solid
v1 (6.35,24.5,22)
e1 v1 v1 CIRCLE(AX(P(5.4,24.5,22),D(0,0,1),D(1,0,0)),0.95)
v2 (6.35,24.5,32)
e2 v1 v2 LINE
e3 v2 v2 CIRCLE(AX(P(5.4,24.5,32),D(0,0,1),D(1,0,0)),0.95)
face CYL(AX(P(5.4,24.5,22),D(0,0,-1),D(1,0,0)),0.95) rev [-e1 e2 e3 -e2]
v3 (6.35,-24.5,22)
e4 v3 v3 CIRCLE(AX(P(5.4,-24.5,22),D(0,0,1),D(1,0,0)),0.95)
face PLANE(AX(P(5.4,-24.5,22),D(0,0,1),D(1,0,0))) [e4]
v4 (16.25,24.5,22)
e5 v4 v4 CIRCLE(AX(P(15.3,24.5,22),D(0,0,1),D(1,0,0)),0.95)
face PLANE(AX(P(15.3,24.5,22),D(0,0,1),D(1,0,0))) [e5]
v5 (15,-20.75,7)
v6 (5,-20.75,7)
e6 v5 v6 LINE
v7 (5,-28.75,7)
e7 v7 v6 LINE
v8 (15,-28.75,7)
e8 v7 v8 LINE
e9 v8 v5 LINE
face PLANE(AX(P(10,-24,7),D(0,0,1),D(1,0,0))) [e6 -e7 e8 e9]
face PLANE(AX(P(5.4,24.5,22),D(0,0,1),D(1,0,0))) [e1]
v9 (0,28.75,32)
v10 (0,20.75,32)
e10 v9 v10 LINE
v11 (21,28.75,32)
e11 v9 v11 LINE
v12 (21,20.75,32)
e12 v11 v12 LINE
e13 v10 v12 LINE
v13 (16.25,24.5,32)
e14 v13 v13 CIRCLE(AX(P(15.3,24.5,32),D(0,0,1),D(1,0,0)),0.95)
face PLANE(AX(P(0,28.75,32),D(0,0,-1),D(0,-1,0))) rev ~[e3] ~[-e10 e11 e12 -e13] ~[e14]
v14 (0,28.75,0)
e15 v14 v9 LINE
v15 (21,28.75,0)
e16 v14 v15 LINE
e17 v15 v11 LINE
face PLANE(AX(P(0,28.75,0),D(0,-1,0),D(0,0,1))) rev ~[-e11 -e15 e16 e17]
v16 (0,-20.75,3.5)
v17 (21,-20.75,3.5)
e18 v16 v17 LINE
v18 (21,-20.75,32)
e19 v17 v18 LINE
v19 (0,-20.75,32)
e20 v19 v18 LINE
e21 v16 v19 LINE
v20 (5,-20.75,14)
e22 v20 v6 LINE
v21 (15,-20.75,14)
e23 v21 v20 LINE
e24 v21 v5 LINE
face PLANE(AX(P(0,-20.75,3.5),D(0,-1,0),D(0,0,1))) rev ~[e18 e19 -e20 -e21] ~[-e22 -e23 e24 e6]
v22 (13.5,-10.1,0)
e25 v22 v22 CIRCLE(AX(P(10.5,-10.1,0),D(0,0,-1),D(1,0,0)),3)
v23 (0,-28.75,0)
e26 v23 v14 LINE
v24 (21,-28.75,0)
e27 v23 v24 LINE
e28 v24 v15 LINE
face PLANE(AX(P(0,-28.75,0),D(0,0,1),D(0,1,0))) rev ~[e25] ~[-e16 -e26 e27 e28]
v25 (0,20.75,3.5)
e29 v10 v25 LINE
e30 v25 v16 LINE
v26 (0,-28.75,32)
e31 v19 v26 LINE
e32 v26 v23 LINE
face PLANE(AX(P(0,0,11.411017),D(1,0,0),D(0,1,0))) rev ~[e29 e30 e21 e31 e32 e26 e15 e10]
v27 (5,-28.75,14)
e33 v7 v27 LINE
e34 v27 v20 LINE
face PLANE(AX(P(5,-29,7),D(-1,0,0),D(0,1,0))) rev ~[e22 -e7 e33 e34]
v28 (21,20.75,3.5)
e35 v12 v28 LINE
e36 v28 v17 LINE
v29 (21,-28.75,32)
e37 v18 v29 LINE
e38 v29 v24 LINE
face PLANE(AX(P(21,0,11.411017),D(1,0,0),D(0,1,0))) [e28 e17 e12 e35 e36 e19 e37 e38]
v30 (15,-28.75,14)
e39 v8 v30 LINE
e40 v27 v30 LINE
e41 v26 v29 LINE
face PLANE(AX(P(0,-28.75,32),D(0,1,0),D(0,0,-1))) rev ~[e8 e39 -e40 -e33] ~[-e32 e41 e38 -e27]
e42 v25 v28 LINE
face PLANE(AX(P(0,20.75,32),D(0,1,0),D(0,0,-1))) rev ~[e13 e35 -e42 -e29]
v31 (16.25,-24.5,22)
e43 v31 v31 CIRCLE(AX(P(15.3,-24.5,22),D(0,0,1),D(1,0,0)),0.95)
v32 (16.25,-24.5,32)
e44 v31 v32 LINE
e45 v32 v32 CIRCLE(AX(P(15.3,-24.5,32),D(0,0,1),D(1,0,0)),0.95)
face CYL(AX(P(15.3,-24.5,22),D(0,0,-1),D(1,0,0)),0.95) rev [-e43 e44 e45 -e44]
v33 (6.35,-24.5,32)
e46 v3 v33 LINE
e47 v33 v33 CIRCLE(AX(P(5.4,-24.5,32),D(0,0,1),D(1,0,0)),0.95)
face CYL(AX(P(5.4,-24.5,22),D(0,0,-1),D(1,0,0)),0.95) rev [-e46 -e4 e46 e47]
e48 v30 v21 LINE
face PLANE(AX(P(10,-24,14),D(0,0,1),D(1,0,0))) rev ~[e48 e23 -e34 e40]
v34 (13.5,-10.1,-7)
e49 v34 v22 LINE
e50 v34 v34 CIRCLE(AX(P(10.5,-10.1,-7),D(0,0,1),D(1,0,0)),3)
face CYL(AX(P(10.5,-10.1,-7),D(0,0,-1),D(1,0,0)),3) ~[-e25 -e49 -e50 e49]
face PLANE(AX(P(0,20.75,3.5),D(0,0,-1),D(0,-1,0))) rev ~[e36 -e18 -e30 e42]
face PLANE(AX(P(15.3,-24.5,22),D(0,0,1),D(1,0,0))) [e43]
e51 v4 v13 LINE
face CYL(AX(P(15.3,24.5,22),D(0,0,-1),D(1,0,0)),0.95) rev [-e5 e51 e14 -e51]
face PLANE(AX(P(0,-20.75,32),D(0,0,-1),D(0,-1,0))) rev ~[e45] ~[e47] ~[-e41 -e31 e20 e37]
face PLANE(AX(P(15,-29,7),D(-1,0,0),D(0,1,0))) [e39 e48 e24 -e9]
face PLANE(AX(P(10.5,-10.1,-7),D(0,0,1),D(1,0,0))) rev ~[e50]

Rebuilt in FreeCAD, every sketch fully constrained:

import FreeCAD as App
import Part
import Sketcher
from FreeCAD import Vector
Q = App.Units.Quantity


def add_polygon(sketch, points):
    """Adds a closed chain of lines whose ends are joined by coincident constraints."""
    first, n = sketch.GeometryCount, len(points)
    for a, b in zip(points, points[1:] + points[:1]):
        sketch.addGeometry(Part.LineSegment(App.Vector(*a, 0), App.Vector(*b, 0)), False)
    for i in range(n):
        sketch.addConstraint(Sketcher.Constraint("Coincident", first + i, 2, first + (i + 1) % n, 1))

doc = App.newDocument("Part")
body = doc.addObject("PartDesign::Body", "Body")

# Sketch on XY plane
sketch1 = body.newObject("Sketcher::SketchObject", "Sketch")
sketch1.AttachmentSupport = (doc.getObject("XY_Plane"), [""])
sketch1.MapMode = "FlatFace"
sketch1.addGeometry(Part.Circle(Vector(9.9, 0, 0), Vector(0, 0, 1), 0.9), False)
sketch1.addConstraint(Sketcher.Constraint("PointOnObject", 0, 3, -1))
sketch1.addConstraint(Sketcher.Constraint("Diameter", 0, Q("1.9 mm")))
sketch1.addConstraint(Sketcher.Constraint("DistanceX", -1, 1, 0, 3, Q("9.9 mm")))
pad1 = body.newObject("PartDesign::Pad", "Pad")
pad1.Profile = sketch1
pad1.Length = 10
body2 = doc.addObject("PartDesign::Body", "Body001")
body2.AllowCompound = True

# Sketch on XY plane
sketch2 = body2.newObject("Sketcher::SketchObject", "Sketch001")
sketch2.AttachmentSupport = (doc.getObject("XY_Plane001"), [""])
sketch2.MapMode = "FlatFace"
sketch2.addGeometry(Part.Circle(Vector(0, 0, 0), Vector(0, 0, 1), 0.9), False)
sketch2.addConstraint(Sketcher.Constraint("Coincident", 0, 3, -1, 1))
sketch2.addConstraint(Sketcher.Constraint("Diameter", 0, Q("1.9 mm")))
pad2 = body2.newObject("PartDesign::Pad", "Pad001")
pad2.Profile = sketch2
pad2.Length = 10
doc.recompute()

boolean = body2.newObject("PartDesign::Boolean", "Boolean")
boolean.Type = "Fuse"
boolean.addObjects([body])
body3 = doc.addObject("PartDesign::Body", "Body002")
body3.AllowCompound = True
doc.recompute()

body2.Placement = App.Placement(Vector(5, -24.5, 22), App.Rotation(Vector(0, 0, 1), 0))
boolean2 = body3.newObject("PartDesign::Boolean", "Boolean001")
boolean2.Type = "Fuse"
boolean2.addObjects([body2])
body4 = doc.addObject("PartDesign::Body", "Body003")

# Sketch on XY plane
sketch3 = body4.newObject("Sketcher::SketchObject", "Sketch002")
sketch3.AttachmentSupport = (doc.getObject("XY_Plane003"), [""])
sketch3.MapMode = "FlatFace"
sketch3.addGeometry(Part.Circle(Vector(9.9, 0, 0), Vector(0, 0, 1), 0.9), False)
sketch3.addConstraint(Sketcher.Constraint("PointOnObject", 0, 3, -1))
sketch3.addConstraint(Sketcher.Constraint("Diameter", 0, Q("1.9 mm")))
sketch3.addConstraint(Sketcher.Constraint("DistanceX", -1, 1, 0, 3, Q("9.9 mm")))
pad3 = body4.newObject("PartDesign::Pad", "Pad002")
pad3.Profile = sketch3
pad3.Length = 10
body5 = doc.addObject("PartDesign::Body", "Body004")
body5.AllowCompound = True

# Sketch on XY plane
sketch4 = body5.newObject("Sketcher::SketchObject", "Sketch003")
sketch4.AttachmentSupport = (doc.getObject("XY_Plane004"), [""])
sketch4.MapMode = "FlatFace"
sketch4.addGeometry(Part.Circle(Vector(0, 0, 0), Vector(0, 0, 1), 0.9), False)
sketch4.addConstraint(Sketcher.Constraint("Coincident", 0, 3, -1, 1))
sketch4.addConstraint(Sketcher.Constraint("Diameter", 0, Q("1.9 mm")))
pad4 = body5.newObject("PartDesign::Pad", "Pad003")
pad4.Profile = sketch4
pad4.Length = 10
doc.recompute()

boolean3 = body5.newObject("PartDesign::Boolean", "Boolean002")
boolean3.Type = "Fuse"
boolean3.addObjects([body4])
body6 = doc.addObject("PartDesign::Body", "Body005")
body6.AllowCompound = True
doc.recompute()

body5.Placement = App.Placement(Vector(5, 24.5, 22), App.Rotation(Vector(0, 0, 1), 0))
boolean4 = body6.newObject("PartDesign::Boolean", "Boolean003")
boolean4.Type = "Fuse"
boolean4.addObjects([body5])
doc.recompute()

boolean5 = body6.newObject("PartDesign::Boolean", "Boolean004")
boolean5.Type = "Fuse"
boolean5.addObjects([body3])
body7 = doc.addObject("PartDesign::Body", "Body006")
body7.AllowCompound = True
doc.recompute()

body6.Placement = App.Placement(Vector(0.4, 0, 0), App.Rotation(Vector(0, 0, 1), 0))
boolean6 = body7.newObject("PartDesign::Boolean", "Boolean005")
boolean6.Type = "Fuse"
boolean6.addObjects([body6])
body8 = doc.addObject("PartDesign::Body", "Body007")

# Sketch on XY plane
sketch5 = body8.newObject("Sketcher::SketchObject", "Sketch004")
sketch5.AttachmentSupport = (doc.getObject("XY_Plane007"), [""])
sketch5.MapMode = "FlatFace"
sketch5.AttachmentOffset = App.Placement(Vector(0, 0, 7), App.Rotation())
add_polygon(sketch5, [(5, -19), (5, -29), (15, -29), (15, -19)])  # lines 0-3
sketch5.addConstraint(Sketcher.Constraint("Vertical", 0))
sketch5.addConstraint(Sketcher.Constraint("Horizontal", 1))
sketch5.addConstraint(Sketcher.Constraint("Vertical", 2))
sketch5.addConstraint(Sketcher.Constraint("Horizontal", 3))
sketch5.addConstraint(Sketcher.Constraint("Equal", 3, 0))
sketch5.addConstraint(Sketcher.Constraint("DistanceX", 1, 1, 1, 2, Q("10 mm")))
sketch5.addConstraint(Sketcher.Constraint("DistanceX", -1, 1, 0, 2, Q("5 mm")))
sketch5.addConstraint(Sketcher.Constraint("DistanceY", 0, 2, -1, 1, Q("29 mm")))
pad5 = body8.newObject("PartDesign::Pad", "Pad004")
pad5.Profile = sketch5
pad5.Length = 7
body9 = doc.addObject("PartDesign::Body", "Body008")

# Sketch on YZ plane
sketch6 = body9.newObject("Sketcher::SketchObject", "Sketch005")
sketch6.AttachmentSupport = (doc.getObject("YZ_Plane008"), [""])
sketch6.MapMode = "FlatFace"
add_polygon(sketch6, [(-29, 32), (-29, 0), (29, 0), (29, 32), (21, 32), (21, 4), (-21, 4), (-21, 32)])  # lines 0-7
sketch6.addConstraint(Sketcher.Constraint("Vertical", 0))
sketch6.addConstraint(Sketcher.Constraint("Horizontal", 1))
sketch6.addConstraint(Sketcher.Constraint("Vertical", 2))
sketch6.addConstraint(Sketcher.Constraint("Horizontal", 3))
sketch6.addConstraint(Sketcher.Constraint("Vertical", 4))
sketch6.addConstraint(Sketcher.Constraint("Horizontal", 5))
sketch6.addConstraint(Sketcher.Constraint("Vertical", 6))
sketch6.addConstraint(Sketcher.Constraint("Horizontal", 7))
sketch6.addConstraint(Sketcher.Constraint("Symmetric", 0, 2, 1, 2, -1, 1))
sketch6.addConstraint(Sketcher.Constraint("Symmetric", 3, 2, 6, 2, -2))
sketch6.addConstraint(Sketcher.Constraint("DistanceX", 3, 2, 3, 1, Q("8 mm")))
sketch6.addConstraint(Sketcher.Constraint("DistanceY", 0, 2, 0, 1, Q("32 mm")))
sketch6.addConstraint(Sketcher.Constraint("DistanceX", 1, 1, 1, 2, Q("57.5 mm")))
sketch6.addConstraint(Sketcher.Constraint("DistanceY", 4, 2, 4, 1, Q("28.5 mm")))
pad6 = body9.newObject("PartDesign::Pad", "Pad005")
pad6.Profile = sketch6
pad6.Length = 21
doc.recompute()

boolean7 = body9.newObject("PartDesign::Boolean", "Boolean006")
boolean7.Type = "Cut"
boolean7.addObjects([body8])
doc.recompute()

boolean8 = body9.newObject("PartDesign::Boolean", "Boolean007")
boolean8.Type = "Cut"
boolean8.addObjects([body7])
body10 = doc.addObject("PartDesign::Body", "Body009")

# Sketch on XY plane
sketch7 = body10.newObject("Sketcher::SketchObject", "Sketch006")
sketch7.AttachmentSupport = (doc.getObject("XY_Plane009"), [""])
sketch7.MapMode = "FlatFace"
sketch7.AttachmentOffset = App.Placement(Vector(0, 0, -7), App.Rotation())
sketch7.addGeometry(Part.Circle(Vector(10.5, -10.1, 0), Vector(0, 0, 1), 3), False)
sketch7.addConstraint(Sketcher.Constraint("Diameter", 0, Q("6 mm")))
sketch7.addConstraint(Sketcher.Constraint("DistanceX", -1, 1, 0, 3, Q("10.5 mm")))
sketch7.addConstraint(Sketcher.Constraint("DistanceY", 0, 3, -1, 1, Q("10.1 mm")))
pad7 = body10.newObject("PartDesign::Pad", "Pad006")
pad7.Profile = sketch7
pad7.Length = 10
doc.recompute()

boolean9 = body10.newObject("PartDesign::Boolean", "Boolean008")
boolean9.Type = "Fuse"
boolean9.addObjects([body9])

doc.recompute()
